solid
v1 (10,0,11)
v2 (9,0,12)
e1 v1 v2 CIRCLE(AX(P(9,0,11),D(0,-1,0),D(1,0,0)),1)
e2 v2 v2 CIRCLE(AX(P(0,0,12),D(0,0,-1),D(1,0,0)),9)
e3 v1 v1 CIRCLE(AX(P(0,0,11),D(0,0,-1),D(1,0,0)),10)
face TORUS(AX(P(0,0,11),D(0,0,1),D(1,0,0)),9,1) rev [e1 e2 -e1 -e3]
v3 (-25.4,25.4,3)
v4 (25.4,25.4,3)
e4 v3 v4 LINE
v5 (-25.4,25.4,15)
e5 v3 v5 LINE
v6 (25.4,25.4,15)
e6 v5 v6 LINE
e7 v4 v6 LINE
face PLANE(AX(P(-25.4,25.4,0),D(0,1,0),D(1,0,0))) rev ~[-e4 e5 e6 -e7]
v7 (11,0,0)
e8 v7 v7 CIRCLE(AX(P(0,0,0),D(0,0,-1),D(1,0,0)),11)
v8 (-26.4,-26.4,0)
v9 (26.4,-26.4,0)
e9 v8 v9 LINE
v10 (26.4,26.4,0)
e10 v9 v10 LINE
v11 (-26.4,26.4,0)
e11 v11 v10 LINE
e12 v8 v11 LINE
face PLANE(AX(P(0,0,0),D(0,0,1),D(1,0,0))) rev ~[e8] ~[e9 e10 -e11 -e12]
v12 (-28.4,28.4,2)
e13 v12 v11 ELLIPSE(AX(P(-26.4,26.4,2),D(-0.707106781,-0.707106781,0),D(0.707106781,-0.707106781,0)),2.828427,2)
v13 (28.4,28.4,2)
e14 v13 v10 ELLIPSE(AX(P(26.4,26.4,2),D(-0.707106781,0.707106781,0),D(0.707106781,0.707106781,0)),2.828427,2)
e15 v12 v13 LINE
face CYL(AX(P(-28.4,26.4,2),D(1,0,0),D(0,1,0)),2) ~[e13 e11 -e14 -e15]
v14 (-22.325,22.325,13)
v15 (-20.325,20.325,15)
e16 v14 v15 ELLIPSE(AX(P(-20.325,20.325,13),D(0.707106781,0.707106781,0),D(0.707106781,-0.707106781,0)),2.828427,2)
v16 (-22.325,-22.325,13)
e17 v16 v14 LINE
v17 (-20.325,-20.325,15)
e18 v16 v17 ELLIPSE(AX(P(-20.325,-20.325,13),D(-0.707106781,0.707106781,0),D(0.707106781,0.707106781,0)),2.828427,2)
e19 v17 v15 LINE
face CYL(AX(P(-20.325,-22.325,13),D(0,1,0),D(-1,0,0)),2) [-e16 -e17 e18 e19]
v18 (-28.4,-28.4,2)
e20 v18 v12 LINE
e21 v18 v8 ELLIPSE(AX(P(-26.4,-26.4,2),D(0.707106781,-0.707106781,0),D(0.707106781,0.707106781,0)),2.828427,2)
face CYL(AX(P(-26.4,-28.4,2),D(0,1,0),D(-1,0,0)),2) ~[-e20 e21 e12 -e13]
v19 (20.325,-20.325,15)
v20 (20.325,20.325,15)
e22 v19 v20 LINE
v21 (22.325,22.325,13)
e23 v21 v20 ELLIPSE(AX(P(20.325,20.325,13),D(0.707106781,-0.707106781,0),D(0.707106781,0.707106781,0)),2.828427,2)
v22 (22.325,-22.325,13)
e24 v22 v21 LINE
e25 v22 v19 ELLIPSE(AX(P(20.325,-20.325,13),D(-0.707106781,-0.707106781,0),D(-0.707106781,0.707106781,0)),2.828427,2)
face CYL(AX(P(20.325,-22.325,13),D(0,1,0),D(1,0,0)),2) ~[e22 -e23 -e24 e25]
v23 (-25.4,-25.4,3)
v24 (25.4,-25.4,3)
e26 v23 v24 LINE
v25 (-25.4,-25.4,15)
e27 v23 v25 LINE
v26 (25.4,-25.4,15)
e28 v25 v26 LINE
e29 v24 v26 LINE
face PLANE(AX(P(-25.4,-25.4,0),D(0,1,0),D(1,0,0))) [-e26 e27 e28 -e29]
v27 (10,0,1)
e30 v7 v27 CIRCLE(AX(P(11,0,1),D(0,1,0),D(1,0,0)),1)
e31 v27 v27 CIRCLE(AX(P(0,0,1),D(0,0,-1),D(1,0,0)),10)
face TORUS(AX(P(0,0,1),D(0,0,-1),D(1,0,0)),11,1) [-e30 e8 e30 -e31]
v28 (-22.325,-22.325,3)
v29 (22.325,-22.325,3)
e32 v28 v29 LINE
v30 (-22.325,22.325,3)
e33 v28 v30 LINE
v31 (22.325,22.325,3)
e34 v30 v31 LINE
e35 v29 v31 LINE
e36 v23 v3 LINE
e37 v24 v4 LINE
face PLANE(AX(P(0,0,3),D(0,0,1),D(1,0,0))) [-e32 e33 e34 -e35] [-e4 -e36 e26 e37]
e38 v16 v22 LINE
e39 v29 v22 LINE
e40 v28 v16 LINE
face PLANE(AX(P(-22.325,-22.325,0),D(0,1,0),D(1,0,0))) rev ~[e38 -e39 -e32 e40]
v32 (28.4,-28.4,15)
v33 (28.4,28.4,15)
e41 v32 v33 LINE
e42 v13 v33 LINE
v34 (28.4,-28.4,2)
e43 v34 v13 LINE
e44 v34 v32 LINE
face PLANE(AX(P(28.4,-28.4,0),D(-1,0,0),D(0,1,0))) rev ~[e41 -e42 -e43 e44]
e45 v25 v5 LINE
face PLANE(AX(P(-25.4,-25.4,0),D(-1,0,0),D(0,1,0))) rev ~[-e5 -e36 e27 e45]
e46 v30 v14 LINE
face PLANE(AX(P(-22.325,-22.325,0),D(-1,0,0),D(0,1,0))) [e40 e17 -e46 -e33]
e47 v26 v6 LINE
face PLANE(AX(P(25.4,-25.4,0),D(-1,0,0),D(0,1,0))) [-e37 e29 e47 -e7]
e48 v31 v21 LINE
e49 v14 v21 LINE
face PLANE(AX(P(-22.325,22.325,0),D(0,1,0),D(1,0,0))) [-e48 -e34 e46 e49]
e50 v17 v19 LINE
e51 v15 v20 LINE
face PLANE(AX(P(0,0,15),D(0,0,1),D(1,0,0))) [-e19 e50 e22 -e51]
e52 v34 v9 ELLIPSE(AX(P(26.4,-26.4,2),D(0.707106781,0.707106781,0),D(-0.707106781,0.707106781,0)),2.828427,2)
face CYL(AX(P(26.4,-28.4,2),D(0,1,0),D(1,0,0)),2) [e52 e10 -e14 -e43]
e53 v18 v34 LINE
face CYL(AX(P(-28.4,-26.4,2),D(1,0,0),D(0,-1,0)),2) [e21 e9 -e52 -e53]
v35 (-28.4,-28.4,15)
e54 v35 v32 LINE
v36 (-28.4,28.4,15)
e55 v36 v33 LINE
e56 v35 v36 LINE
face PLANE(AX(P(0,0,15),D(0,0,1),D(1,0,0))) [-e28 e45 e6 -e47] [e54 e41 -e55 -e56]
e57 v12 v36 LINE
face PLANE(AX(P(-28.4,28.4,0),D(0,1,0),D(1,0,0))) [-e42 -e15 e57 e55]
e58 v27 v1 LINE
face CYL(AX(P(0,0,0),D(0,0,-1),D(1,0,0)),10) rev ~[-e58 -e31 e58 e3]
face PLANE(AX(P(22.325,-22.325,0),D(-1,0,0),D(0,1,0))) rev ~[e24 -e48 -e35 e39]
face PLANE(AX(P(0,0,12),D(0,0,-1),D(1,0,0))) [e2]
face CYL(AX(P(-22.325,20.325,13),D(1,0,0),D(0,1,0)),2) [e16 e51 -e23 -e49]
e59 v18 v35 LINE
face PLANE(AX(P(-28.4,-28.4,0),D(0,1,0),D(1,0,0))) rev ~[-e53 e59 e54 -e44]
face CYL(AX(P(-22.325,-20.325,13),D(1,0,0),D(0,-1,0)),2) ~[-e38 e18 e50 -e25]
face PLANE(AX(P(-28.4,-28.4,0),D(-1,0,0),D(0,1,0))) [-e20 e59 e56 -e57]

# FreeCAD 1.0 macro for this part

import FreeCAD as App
import Part
import Sketcher
from FreeCAD import Vector


def edges_at(feature, points):
    """Names of the edges that pass closest to the given points."""
    edges = feature.Shape.Edges
    near = lambda p: min(range(len(edges)), key=lambda i: edges[i].distToShape(Part.Vertex(*p))[0])
    return sorted({f"Edge{near(p) + 1}" for p in points})

doc = App.newDocument("Part")
body = doc.addObject("PartDesign::Body", "Body")

# Sketch on XY plane
sketch1 = body.newObject("Sketcher::SketchObject", "Sketch")
sketch1.AttachmentSupport = (doc.getObject("XY_Plane"), [""])
sketch1.MapMode = "FlatFace"
sketch1.addGeometry(Part.LineSegment(Vector(-25.4, 25.4, 0), Vector(-25.4, -25.4, 0)), False)
sketch1.addGeometry(Part.LineSegment(Vector(-25.4, -25.4, 0), Vector(25.4, -25.4, 0)), False)
sketch1.addGeometry(Part.LineSegment(Vector(25.4, -25.4, 0), Vector(25.4, 25.4, 0)), False)
sketch1.addGeometry(Part.LineSegment(Vector(25.4, 25.4, 0), Vector(-25.4, 25.4, 0)), False)
sketch1.addGeometry(Part.LineSegment(Vector(22.325, -22.325, 0), Vector(-22.325, -22.325, 0)), False)
sketch1.addGeometry(Part.LineSegment(Vector(-22.325, -22.325, 0), Vector(-22.325, 22.325, 0)), False)
sketch1.addGeometry(Part.LineSegment(Vector(-22.325, 22.325, 0), Vector(22.325, 22.325, 0)), False)
sketch1.addGeometry(Part.LineSegment(Vector(22.325, 22.325, 0), Vector(22.325, -22.325, 0)), False)
sketch1.addConstraint(Sketcher.Constraint("Coincident", 0, 2, 1, 1))
sketch1.addConstraint(Sketcher.Constraint("Coincident", 1, 2, 2, 1))
sketch1.addConstraint(Sketcher.Constraint("Coincident", 2, 2, 3, 1))
sketch1.addConstraint(Sketcher.Constraint("Coincident", 3, 2, 0, 1))
sketch1.addConstraint(Sketcher.Constraint("Coincident", 4, 2, 5, 1))
sketch1.addConstraint(Sketcher.Constraint("Coincident", 5, 2, 6, 1))
sketch1.addConstraint(Sketcher.Constraint("Coincident", 6, 2, 7, 1))
sketch1.addConstraint(Sketcher.Constraint("Coincident", 7, 2, 4, 1))
sketch1.addConstraint(Sketcher.Constraint("Vertical", 0))
sketch1.addConstraint(Sketcher.Constraint("Horizontal", 1))
sketch1.addConstraint(Sketcher.Constraint("Vertical", 2))
sketch1.addConstraint(Sketcher.Constraint("Horizontal", 3))
sketch1.addConstraint(Sketcher.Constraint("Horizontal", 4))
sketch1.addConstraint(Sketcher.Constraint("Vertical", 5))
sketch1.addConstraint(Sketcher.Constraint("Horizontal", 6))
sketch1.addConstraint(Sketcher.Constraint("Vertical", 7))
sketch1.addConstraint(Sketcher.Constraint("Symmetric", 0, 2, 2, 2, -1, 1))
sketch1.addConstraint(Sketcher.Constraint("Symmetric", 4, 2, 6, 2, -1, 1))
sketch1.addConstraint(Sketcher.Constraint("Equal", 3, 0))
sketch1.addConstraint(Sketcher.Constraint("Equal", 6, 5))
sketch1.addConstraint(Sketcher.Constraint("DistanceX", 1, 1, 1, 2, 50.8))
sketch1.addConstraint(Sketcher.Constraint("DistanceX", 4, 2, 4, 1, 44.65))
pad1 = body.newObject("PartDesign::Pad", "Pad")
pad1.Profile = sketch1
pad1.Length = 3

# Sketch on XY plane
sketch2 = body.newObject("Sketcher::SketchObject", "Sketch001")
sketch2.AttachmentSupport = (doc.getObject("XY_Plane"), [""])
sketch2.MapMode = "FlatFace"
sketch2.addGeometry(Part.LineSegment(Vector(-28.4, 28.4, 0), Vector(-28.4, -28.4, 0)), False)
sketch2.addGeometry(Part.LineSegment(Vector(-28.4, -28.4, 0), Vector(28.4, -28.4, 0)), False)
sketch2.addGeometry(Part.LineSegment(Vector(28.4, -28.4, 0), Vector(28.4, 28.4, 0)), False)
sketch2.addGeometry(Part.LineSegment(Vector(28.4, 28.4, 0), Vector(-28.4, 28.4, 0)), False)
sketch2.addGeometry(Part.LineSegment(Vector(25.4, -25.4, 0), Vector(-25.4, -25.4, 0)), False)
sketch2.addGeometry(Part.LineSegment(Vector(-25.4, -25.4, 0), Vector(-25.4, 25.4, 0)), False)
sketch2.addGeometry(Part.LineSegment(Vector(-25.4, 25.4, 0), Vector(25.4, 25.4, 0)), False)
sketch2.addGeometry(Part.LineSegment(Vector(25.4, 25.4, 0), Vector(25.4, -25.4, 0)), False)
sketch2.addGeometry(Part.LineSegment(Vector(-22.325, 22.325, 0), Vector(-22.325, -22.325, 0)), False)
sketch2.addGeometry(Part.LineSegment(Vector(-22.325, -22.325, 0), Vector(22.325, -22.325, 0)), False)
sketch2.addGeometry(Part.LineSegment(Vector(22.325, -22.325, 0), Vector(22.325, 22.325, 0)), False)
sketch2.addGeometry(Part.LineSegment(Vector(22.325, 22.325, 0), Vector(-22.325, 22.325, 0)), False)
sketch2.addConstraint(Sketcher.Constraint("Coincident", 0, 2, 1, 1))
sketch2.addConstraint(Sketcher.Constraint("Coincident", 1, 2, 2, 1))
sketch2.addConstraint(Sketcher.Constraint("Coincident", 2, 2, 3, 1))
sketch2.addConstraint(Sketcher.Constraint("Coincident", 3, 2, 0, 1))
sketch2.addConstraint(Sketcher.Constraint("Coincident", 4, 2, 5, 1))
sketch2.addConstraint(Sketcher.Constraint("Coincident", 5, 2, 6, 1))
sketch2.addConstraint(Sketcher.Constraint("Coincident", 6, 2, 7, 1))
sketch2.addConstraint(Sketcher.Constraint("Coincident", 7, 2, 4, 1))
sketch2.addConstraint(Sketcher.Constraint("Coincident", 8, 2, 9, 1))
sketch2.addConstraint(Sketcher.Constraint("Coincident", 9, 2, 10, 1))
sketch2.addConstraint(Sketcher.Constraint("Coincident", 10, 2, 11, 1))
sketch2.addConstraint(Sketcher.Constraint("Coincident", 11, 2, 8, 1))
sketch2.addConstraint(Sketcher.Constraint("Vertical", 0))
sketch2.addConstraint(Sketcher.Constraint("Horizontal", 1))
sketch2.addConstraint(Sketcher.Constraint("Vertical", 2))
sketch2.addConstraint(Sketcher.Constraint("Horizontal", 3))
sketch2.addConstraint(Sketcher.Constraint("Horizontal", 4))
sketch2.addConstraint(Sketcher.Constraint("Vertical", 5))
sketch2.addConstraint(Sketcher.Constraint("Horizontal", 6))
sketch2.addConstraint(Sketcher.Constraint("Vertical", 7))
sketch2.addConstraint(Sketcher.Constraint("Vertical", 8))
sketch2.addConstraint(Sketcher.Constraint("Horizontal", 9))
sketch2.addConstraint(Sketcher.Constraint("Vertical", 10))
sketch2.addConstraint(Sketcher.Constraint("Horizontal", 11))
sketch2.addConstraint(Sketcher.Constraint("Symmetric", 0, 2, 2, 2, -1, 1))
sketch2.addConstraint(Sketcher.Constraint("Symmetric", 4, 2, 6, 2, -1, 1))
sketch2.addConstraint(Sketcher.Constraint("Symmetric", 8, 2, 10, 2, -1, 1))
sketch2.addConstraint(Sketcher.Constraint("Equal", 3, 0))
sketch2.addConstraint(Sketcher.Constraint("Equal", 6, 5))
sketch2.addConstraint(Sketcher.Constraint("Equal", 11, 8))
sketch2.addConstraint(Sketcher.Constraint("DistanceX", 1, 1, 1, 2, 56.8))
sketch2.addConstraint(Sketcher.Constraint("DistanceX", 4, 2, 4, 1, 50.8))
sketch2.addConstraint(Sketcher.Constraint("DistanceX", 9, 1, 9, 2, 44.65))
pad2 = body.newObject("PartDesign::Pad", "Pad001")
pad2.Profile = sketch2
pad2.Length = 15
doc.recompute()

fillet = body.newObject("PartDesign::Fillet", "Fillet")
fillet.Base = (pad2, edges_at(pad2, [
    (22.325, 0, 15),
    (0, 22.325, 15),
    (-22.325, 0, 15),
    (0, -22.325, 15),
]))
fillet.Radius = 2
doc.recompute()

fillet2 = body.newObject("PartDesign::Fillet", "Fillet001")
fillet2.Base = (fillet, edges_at(fillet, [
    (28.4, 0, 0),
    (0, 28.4, 0),
    (-28.4, 0, 0),
    (0, -28.4, 0),
]))
fillet2.Radius = 2

# Sketch on XY plane
sketch3 = body.newObject("Sketcher::SketchObject", "Sketch002")
sketch3.AttachmentSupport = (doc.getObject("XY_Plane"), [""])
sketch3.MapMode = "FlatFace"
sketch3.addGeometry(Part.Circle(Vector(0, 0, 0), Vector(0, 0, 1), 10), False)
sketch3.addConstraint(Sketcher.Constraint("Coincident", 0, 3, -1, 1))
sketch3.addConstraint(Sketcher.Constraint("Diameter", 0, 20.0))
pocket1 = body.newObject("PartDesign::Pocket", "Pocket")
pocket1.Profile = sketch3
pocket1.Length = 12
pocket1.Reversed = True
doc.recompute()

fillet3 = body.newObject("PartDesign::Fillet", "Fillet002")
fillet3.Base = (pocket1, edges_at(pocket1, [(10, 0, 6), (-10, 0, 0), (-10, 0, 12)]))
fillet3.Radius = 1

doc.recompute()
